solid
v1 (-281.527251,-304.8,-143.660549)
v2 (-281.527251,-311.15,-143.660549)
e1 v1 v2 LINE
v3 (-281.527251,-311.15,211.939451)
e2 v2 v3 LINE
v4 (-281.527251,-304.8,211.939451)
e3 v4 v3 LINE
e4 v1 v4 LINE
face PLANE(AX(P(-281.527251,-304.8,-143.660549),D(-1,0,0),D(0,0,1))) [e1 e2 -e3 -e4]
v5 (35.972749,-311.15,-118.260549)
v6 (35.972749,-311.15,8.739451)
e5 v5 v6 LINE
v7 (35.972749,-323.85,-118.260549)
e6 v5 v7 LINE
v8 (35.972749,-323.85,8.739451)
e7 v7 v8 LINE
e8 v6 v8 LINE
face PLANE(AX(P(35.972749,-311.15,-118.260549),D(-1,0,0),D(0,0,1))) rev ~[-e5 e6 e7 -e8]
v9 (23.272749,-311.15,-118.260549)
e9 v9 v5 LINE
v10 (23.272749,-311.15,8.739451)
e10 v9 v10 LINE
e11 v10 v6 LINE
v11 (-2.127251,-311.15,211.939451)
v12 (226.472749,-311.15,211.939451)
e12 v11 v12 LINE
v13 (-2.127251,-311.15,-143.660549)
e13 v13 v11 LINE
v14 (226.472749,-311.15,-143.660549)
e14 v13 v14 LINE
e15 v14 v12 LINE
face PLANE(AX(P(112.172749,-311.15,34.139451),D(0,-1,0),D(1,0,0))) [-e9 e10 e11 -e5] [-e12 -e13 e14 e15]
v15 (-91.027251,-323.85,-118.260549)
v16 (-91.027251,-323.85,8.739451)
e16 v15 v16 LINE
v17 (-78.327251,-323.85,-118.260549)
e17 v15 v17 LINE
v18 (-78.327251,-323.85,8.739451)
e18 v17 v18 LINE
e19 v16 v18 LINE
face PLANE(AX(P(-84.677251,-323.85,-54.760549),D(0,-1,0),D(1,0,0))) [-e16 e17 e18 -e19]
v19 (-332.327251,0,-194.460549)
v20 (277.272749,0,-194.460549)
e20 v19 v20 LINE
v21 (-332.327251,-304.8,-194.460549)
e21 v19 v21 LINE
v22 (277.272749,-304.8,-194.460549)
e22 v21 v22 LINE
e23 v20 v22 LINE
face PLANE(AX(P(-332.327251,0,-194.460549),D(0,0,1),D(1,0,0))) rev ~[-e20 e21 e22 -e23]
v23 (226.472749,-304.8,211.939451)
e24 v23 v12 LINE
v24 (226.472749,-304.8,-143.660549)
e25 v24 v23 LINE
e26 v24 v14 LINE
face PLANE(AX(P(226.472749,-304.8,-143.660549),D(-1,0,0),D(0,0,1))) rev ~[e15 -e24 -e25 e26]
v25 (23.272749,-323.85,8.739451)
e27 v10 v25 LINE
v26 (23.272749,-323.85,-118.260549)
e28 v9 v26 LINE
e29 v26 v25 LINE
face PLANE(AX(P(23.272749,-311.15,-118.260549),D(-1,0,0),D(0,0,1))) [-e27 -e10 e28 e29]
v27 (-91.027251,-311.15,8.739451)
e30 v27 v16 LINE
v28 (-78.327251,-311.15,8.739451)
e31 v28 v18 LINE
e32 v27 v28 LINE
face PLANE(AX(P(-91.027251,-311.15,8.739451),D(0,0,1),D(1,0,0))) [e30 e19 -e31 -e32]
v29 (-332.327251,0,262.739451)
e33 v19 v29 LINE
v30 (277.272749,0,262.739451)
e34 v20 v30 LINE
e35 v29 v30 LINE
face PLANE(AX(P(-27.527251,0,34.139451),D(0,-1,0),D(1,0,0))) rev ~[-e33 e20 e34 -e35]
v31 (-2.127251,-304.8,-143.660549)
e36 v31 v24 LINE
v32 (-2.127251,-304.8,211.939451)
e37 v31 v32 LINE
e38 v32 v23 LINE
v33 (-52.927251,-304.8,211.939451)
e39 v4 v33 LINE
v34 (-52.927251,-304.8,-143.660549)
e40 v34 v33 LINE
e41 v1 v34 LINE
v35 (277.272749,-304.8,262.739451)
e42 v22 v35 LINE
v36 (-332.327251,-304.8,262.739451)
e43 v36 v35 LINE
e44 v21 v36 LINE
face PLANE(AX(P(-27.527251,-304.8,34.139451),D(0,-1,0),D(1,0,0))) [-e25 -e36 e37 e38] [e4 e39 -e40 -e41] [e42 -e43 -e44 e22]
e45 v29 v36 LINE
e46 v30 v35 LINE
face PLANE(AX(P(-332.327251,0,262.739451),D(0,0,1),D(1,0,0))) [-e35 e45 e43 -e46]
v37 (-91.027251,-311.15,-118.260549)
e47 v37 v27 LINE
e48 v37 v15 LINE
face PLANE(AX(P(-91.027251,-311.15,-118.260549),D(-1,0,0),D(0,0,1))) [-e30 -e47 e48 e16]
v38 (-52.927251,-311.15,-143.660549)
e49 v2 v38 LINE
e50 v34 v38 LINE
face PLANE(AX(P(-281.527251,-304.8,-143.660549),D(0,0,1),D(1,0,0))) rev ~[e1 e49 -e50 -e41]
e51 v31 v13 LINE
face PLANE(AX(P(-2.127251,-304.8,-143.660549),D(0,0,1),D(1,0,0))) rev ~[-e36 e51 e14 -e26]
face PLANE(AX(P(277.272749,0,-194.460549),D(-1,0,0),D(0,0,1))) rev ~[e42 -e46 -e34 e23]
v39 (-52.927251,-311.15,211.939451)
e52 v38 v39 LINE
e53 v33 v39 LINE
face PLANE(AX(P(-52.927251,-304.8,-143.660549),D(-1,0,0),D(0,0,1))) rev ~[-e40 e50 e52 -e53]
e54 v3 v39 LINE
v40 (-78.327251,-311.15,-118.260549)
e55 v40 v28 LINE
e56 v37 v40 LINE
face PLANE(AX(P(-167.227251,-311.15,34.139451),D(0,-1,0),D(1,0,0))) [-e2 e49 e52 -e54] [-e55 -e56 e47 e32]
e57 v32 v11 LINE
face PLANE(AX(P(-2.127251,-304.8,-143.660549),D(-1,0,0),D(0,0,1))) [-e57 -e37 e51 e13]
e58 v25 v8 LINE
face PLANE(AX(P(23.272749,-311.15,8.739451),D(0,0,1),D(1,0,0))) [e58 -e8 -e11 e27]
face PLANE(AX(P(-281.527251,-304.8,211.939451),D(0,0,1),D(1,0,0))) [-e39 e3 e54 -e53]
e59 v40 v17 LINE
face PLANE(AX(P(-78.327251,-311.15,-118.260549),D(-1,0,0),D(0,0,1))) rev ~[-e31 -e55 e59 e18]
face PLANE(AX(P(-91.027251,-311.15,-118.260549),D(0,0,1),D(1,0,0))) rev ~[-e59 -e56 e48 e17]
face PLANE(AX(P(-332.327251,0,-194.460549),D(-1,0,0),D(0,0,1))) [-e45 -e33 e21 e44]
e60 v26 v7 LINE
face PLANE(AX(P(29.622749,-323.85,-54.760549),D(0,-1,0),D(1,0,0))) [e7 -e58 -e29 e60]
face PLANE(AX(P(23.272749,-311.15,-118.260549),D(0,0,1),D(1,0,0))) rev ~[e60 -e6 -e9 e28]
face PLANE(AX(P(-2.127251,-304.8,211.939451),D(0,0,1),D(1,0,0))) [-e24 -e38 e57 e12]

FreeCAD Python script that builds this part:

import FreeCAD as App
import Part
import Sketcher

V = App.Vector
Q = App.Units.Quantity


def add_polygon(sketch, points):
    """Adds a closed chain of lines whose ends are joined by coincident constraints."""
    first, n = sketch.GeometryCount, len(points)
    for a, b in zip(points, points[1:] + points[:1]):
        sketch.addGeometry(Part.LineSegment(App.Vector(*a, 0), App.Vector(*b, 0)), False)
    for i in range(n):
        sketch.addConstraint(Sketcher.Constraint("Coincident", first + i, 2, first + (i + 1) % n, 1))

doc = App.newDocument("Part")
body = doc.addObject("PartDesign::Body", "Body")

# Sketch on XZ plane
sketch1 = body.newObject("Sketcher::SketchObject", "Sketch")
sketch1.AttachmentSupport = (doc.getObject("XZ_Plane"), [""])
sketch1.MapMode = "FlatFace"
add_polygon(sketch1, [(-332, 263), (-332, -194), (277, -194), (277, 263)])  # lines 0-3
sketch1.addConstraint(Sketcher.Constraint("Vertical", 0))
sketch1.addConstraint(Sketcher.Constraint("Horizontal", 1))
sketch1.addConstraint(Sketcher.Constraint("Vertical", 2))
sketch1.addConstraint(Sketcher.Constraint("Horizontal", 3))
sketch1.addConstraint(Sketcher.Constraint("DistanceX", 1, 1, 1, 2, Q("24 in")))
sketch1.addConstraint(Sketcher.Constraint("DistanceY", 0, 2, 0, 1, Q("18 in")))
sketch1.addConstraint(Sketcher.Constraint("DistanceX", 0, 2, -1, 1, 332.327251))
sketch1.addConstraint(Sketcher.Constraint("DistanceY", 0, 2, -1, 1, 194.460549))
pad1 = body.newObject("PartDesign::Pad", "Pad")
pad1.Profile = sketch1
pad1.Length = Q("12 in")

# Sketch on XZ plane
sketch2 = body.newObject("Sketcher::SketchObject", "Sketch001")
sketch2.AttachmentSupport = (doc.getObject("XZ_Plane"), [""])
sketch2.MapMode = "FlatFace"
sketch2.AttachmentOffset = App.Placement(V(0, 0, 12 * 25.4), App.Rotation())
add_polygon(sketch2, [(-282, 212), (-282, -144), (-53, -144), (-53, 212)])  # lines 0-3
add_polygon(sketch2, [(-2, 212), (-2, -144), (226, -144), (226, 212)])  # lines 4-7
sketch2.addConstraint(Sketcher.Constraint("Vertical", 0))
sketch2.addConstraint(Sketcher.Constraint("Horizontal", 1))
sketch2.addConstraint(Sketcher.Constraint("Vertical", 2))
sketch2.addConstraint(Sketcher.Constraint("Horizontal", 3))
sketch2.addConstraint(Sketcher.Constraint("Vertical", 4))
sketch2.addConstraint(Sketcher.Constraint("Horizontal", 5))
sketch2.addConstraint(Sketcher.Constraint("Vertical", 6))
sketch2.addConstraint(Sketcher.Constraint("Horizontal", 7))
sketch2.addConstraint(Sketcher.Constraint("Horizontal", 1, 2, 4, 2))
sketch2.addConstraint(Sketcher.Constraint("Horizontal", 3, 2, 6, 2))
sketch2.addConstraint(Sketcher.Constraint("Equal", 3, 5))
sketch2.addConstraint(Sketcher.Constraint("DistanceX", 1, 1, 1, 2, Q("9 in")))
sketch2.addConstraint(Sketcher.Constraint("DistanceY", 0, 2, 0, 1, Q("14 in")))
sketch2.addConstraint(Sketcher.Constraint("DistanceX", 1, 2, 4, 2, Q("2 in")))
sketch2.addConstraint(Sketcher.Constraint("DistanceX", 0, 2, -1, 1, 281.527251))
sketch2.addConstraint(Sketcher.Constraint("DistanceY", 0, 2, -1, 1, 143.660549))
pad2 = body.newObject("PartDesign::Pad", "Pad001")
pad2.Profile = sketch2
pad2.Length = Q("0.25 in")

# Sketch on XZ plane
sketch3 = body.newObject("Sketcher::SketchObject", "Sketch002")
sketch3.AttachmentSupport = (doc.getObject("XZ_Plane"), [""])
sketch3.MapMode = "FlatFace"
sketch3.AttachmentOffset = App.Placement(V(0, 0, 12.25 * 25.4), App.Rotation())
add_polygon(sketch3, [(-91, 9), (-91, -118), (-78, -118), (-78, 9)])  # lines 0-3
add_polygon(sketch3, [(23, 9), (23, -118), (36, -118), (36, 9)])  # lines 4-7
sketch3.addConstraint(Sketcher.Constraint("Vertical", 0))
sketch3.addConstraint(Sketcher.Constraint("Horizontal", 1))
sketch3.addConstraint(Sketcher.Constraint("Vertical", 2))
sketch3.addConstraint(Sketcher.Constraint("Horizontal", 3))
sketch3.addConstraint(Sketcher.Constraint("Vertical", 4))
sketch3.addConstraint(Sketcher.Constraint("Horizontal", 5))
sketch3.addConstraint(Sketcher.Constraint("Vertical", 6))
sketch3.addConstraint(Sketcher.Constraint("Horizontal", 7))
sketch3.addConstraint(Sketcher.Constraint("Horizontal", 1, 2, 4, 2))
sketch3.addConstraint(Sketcher.Constraint("Horizontal", 3, 2, 6, 2))
sketch3.addConstraint(Sketcher.Constraint("Equal", 3, 5))
sketch3.addConstraint(Sketcher.Constraint("DistanceY", 0, 2, 0, 1, Q("5 in")))
sketch3.addConstraint(Sketcher.Constraint("DistanceX", 1, 1, 1, 2, Q("0.5 in")))
sketch3.addConstraint(Sketcher.Constraint("DistanceX", 1, 2, 4, 2, Q("4 in")))
sketch3.addConstraint(Sketcher.Constraint("DistanceX", 0, 2, -1, 1, 91.027251))
sketch3.addConstraint(Sketcher.Constraint("DistanceY", 0, 2, -1, 1, 118.260549))
pad3 = body.newObject("PartDesign::Pad", "Pad002")
pad3.Profile = sketch3
pad3.Length = Q("0.5 in")

doc.recompute()
